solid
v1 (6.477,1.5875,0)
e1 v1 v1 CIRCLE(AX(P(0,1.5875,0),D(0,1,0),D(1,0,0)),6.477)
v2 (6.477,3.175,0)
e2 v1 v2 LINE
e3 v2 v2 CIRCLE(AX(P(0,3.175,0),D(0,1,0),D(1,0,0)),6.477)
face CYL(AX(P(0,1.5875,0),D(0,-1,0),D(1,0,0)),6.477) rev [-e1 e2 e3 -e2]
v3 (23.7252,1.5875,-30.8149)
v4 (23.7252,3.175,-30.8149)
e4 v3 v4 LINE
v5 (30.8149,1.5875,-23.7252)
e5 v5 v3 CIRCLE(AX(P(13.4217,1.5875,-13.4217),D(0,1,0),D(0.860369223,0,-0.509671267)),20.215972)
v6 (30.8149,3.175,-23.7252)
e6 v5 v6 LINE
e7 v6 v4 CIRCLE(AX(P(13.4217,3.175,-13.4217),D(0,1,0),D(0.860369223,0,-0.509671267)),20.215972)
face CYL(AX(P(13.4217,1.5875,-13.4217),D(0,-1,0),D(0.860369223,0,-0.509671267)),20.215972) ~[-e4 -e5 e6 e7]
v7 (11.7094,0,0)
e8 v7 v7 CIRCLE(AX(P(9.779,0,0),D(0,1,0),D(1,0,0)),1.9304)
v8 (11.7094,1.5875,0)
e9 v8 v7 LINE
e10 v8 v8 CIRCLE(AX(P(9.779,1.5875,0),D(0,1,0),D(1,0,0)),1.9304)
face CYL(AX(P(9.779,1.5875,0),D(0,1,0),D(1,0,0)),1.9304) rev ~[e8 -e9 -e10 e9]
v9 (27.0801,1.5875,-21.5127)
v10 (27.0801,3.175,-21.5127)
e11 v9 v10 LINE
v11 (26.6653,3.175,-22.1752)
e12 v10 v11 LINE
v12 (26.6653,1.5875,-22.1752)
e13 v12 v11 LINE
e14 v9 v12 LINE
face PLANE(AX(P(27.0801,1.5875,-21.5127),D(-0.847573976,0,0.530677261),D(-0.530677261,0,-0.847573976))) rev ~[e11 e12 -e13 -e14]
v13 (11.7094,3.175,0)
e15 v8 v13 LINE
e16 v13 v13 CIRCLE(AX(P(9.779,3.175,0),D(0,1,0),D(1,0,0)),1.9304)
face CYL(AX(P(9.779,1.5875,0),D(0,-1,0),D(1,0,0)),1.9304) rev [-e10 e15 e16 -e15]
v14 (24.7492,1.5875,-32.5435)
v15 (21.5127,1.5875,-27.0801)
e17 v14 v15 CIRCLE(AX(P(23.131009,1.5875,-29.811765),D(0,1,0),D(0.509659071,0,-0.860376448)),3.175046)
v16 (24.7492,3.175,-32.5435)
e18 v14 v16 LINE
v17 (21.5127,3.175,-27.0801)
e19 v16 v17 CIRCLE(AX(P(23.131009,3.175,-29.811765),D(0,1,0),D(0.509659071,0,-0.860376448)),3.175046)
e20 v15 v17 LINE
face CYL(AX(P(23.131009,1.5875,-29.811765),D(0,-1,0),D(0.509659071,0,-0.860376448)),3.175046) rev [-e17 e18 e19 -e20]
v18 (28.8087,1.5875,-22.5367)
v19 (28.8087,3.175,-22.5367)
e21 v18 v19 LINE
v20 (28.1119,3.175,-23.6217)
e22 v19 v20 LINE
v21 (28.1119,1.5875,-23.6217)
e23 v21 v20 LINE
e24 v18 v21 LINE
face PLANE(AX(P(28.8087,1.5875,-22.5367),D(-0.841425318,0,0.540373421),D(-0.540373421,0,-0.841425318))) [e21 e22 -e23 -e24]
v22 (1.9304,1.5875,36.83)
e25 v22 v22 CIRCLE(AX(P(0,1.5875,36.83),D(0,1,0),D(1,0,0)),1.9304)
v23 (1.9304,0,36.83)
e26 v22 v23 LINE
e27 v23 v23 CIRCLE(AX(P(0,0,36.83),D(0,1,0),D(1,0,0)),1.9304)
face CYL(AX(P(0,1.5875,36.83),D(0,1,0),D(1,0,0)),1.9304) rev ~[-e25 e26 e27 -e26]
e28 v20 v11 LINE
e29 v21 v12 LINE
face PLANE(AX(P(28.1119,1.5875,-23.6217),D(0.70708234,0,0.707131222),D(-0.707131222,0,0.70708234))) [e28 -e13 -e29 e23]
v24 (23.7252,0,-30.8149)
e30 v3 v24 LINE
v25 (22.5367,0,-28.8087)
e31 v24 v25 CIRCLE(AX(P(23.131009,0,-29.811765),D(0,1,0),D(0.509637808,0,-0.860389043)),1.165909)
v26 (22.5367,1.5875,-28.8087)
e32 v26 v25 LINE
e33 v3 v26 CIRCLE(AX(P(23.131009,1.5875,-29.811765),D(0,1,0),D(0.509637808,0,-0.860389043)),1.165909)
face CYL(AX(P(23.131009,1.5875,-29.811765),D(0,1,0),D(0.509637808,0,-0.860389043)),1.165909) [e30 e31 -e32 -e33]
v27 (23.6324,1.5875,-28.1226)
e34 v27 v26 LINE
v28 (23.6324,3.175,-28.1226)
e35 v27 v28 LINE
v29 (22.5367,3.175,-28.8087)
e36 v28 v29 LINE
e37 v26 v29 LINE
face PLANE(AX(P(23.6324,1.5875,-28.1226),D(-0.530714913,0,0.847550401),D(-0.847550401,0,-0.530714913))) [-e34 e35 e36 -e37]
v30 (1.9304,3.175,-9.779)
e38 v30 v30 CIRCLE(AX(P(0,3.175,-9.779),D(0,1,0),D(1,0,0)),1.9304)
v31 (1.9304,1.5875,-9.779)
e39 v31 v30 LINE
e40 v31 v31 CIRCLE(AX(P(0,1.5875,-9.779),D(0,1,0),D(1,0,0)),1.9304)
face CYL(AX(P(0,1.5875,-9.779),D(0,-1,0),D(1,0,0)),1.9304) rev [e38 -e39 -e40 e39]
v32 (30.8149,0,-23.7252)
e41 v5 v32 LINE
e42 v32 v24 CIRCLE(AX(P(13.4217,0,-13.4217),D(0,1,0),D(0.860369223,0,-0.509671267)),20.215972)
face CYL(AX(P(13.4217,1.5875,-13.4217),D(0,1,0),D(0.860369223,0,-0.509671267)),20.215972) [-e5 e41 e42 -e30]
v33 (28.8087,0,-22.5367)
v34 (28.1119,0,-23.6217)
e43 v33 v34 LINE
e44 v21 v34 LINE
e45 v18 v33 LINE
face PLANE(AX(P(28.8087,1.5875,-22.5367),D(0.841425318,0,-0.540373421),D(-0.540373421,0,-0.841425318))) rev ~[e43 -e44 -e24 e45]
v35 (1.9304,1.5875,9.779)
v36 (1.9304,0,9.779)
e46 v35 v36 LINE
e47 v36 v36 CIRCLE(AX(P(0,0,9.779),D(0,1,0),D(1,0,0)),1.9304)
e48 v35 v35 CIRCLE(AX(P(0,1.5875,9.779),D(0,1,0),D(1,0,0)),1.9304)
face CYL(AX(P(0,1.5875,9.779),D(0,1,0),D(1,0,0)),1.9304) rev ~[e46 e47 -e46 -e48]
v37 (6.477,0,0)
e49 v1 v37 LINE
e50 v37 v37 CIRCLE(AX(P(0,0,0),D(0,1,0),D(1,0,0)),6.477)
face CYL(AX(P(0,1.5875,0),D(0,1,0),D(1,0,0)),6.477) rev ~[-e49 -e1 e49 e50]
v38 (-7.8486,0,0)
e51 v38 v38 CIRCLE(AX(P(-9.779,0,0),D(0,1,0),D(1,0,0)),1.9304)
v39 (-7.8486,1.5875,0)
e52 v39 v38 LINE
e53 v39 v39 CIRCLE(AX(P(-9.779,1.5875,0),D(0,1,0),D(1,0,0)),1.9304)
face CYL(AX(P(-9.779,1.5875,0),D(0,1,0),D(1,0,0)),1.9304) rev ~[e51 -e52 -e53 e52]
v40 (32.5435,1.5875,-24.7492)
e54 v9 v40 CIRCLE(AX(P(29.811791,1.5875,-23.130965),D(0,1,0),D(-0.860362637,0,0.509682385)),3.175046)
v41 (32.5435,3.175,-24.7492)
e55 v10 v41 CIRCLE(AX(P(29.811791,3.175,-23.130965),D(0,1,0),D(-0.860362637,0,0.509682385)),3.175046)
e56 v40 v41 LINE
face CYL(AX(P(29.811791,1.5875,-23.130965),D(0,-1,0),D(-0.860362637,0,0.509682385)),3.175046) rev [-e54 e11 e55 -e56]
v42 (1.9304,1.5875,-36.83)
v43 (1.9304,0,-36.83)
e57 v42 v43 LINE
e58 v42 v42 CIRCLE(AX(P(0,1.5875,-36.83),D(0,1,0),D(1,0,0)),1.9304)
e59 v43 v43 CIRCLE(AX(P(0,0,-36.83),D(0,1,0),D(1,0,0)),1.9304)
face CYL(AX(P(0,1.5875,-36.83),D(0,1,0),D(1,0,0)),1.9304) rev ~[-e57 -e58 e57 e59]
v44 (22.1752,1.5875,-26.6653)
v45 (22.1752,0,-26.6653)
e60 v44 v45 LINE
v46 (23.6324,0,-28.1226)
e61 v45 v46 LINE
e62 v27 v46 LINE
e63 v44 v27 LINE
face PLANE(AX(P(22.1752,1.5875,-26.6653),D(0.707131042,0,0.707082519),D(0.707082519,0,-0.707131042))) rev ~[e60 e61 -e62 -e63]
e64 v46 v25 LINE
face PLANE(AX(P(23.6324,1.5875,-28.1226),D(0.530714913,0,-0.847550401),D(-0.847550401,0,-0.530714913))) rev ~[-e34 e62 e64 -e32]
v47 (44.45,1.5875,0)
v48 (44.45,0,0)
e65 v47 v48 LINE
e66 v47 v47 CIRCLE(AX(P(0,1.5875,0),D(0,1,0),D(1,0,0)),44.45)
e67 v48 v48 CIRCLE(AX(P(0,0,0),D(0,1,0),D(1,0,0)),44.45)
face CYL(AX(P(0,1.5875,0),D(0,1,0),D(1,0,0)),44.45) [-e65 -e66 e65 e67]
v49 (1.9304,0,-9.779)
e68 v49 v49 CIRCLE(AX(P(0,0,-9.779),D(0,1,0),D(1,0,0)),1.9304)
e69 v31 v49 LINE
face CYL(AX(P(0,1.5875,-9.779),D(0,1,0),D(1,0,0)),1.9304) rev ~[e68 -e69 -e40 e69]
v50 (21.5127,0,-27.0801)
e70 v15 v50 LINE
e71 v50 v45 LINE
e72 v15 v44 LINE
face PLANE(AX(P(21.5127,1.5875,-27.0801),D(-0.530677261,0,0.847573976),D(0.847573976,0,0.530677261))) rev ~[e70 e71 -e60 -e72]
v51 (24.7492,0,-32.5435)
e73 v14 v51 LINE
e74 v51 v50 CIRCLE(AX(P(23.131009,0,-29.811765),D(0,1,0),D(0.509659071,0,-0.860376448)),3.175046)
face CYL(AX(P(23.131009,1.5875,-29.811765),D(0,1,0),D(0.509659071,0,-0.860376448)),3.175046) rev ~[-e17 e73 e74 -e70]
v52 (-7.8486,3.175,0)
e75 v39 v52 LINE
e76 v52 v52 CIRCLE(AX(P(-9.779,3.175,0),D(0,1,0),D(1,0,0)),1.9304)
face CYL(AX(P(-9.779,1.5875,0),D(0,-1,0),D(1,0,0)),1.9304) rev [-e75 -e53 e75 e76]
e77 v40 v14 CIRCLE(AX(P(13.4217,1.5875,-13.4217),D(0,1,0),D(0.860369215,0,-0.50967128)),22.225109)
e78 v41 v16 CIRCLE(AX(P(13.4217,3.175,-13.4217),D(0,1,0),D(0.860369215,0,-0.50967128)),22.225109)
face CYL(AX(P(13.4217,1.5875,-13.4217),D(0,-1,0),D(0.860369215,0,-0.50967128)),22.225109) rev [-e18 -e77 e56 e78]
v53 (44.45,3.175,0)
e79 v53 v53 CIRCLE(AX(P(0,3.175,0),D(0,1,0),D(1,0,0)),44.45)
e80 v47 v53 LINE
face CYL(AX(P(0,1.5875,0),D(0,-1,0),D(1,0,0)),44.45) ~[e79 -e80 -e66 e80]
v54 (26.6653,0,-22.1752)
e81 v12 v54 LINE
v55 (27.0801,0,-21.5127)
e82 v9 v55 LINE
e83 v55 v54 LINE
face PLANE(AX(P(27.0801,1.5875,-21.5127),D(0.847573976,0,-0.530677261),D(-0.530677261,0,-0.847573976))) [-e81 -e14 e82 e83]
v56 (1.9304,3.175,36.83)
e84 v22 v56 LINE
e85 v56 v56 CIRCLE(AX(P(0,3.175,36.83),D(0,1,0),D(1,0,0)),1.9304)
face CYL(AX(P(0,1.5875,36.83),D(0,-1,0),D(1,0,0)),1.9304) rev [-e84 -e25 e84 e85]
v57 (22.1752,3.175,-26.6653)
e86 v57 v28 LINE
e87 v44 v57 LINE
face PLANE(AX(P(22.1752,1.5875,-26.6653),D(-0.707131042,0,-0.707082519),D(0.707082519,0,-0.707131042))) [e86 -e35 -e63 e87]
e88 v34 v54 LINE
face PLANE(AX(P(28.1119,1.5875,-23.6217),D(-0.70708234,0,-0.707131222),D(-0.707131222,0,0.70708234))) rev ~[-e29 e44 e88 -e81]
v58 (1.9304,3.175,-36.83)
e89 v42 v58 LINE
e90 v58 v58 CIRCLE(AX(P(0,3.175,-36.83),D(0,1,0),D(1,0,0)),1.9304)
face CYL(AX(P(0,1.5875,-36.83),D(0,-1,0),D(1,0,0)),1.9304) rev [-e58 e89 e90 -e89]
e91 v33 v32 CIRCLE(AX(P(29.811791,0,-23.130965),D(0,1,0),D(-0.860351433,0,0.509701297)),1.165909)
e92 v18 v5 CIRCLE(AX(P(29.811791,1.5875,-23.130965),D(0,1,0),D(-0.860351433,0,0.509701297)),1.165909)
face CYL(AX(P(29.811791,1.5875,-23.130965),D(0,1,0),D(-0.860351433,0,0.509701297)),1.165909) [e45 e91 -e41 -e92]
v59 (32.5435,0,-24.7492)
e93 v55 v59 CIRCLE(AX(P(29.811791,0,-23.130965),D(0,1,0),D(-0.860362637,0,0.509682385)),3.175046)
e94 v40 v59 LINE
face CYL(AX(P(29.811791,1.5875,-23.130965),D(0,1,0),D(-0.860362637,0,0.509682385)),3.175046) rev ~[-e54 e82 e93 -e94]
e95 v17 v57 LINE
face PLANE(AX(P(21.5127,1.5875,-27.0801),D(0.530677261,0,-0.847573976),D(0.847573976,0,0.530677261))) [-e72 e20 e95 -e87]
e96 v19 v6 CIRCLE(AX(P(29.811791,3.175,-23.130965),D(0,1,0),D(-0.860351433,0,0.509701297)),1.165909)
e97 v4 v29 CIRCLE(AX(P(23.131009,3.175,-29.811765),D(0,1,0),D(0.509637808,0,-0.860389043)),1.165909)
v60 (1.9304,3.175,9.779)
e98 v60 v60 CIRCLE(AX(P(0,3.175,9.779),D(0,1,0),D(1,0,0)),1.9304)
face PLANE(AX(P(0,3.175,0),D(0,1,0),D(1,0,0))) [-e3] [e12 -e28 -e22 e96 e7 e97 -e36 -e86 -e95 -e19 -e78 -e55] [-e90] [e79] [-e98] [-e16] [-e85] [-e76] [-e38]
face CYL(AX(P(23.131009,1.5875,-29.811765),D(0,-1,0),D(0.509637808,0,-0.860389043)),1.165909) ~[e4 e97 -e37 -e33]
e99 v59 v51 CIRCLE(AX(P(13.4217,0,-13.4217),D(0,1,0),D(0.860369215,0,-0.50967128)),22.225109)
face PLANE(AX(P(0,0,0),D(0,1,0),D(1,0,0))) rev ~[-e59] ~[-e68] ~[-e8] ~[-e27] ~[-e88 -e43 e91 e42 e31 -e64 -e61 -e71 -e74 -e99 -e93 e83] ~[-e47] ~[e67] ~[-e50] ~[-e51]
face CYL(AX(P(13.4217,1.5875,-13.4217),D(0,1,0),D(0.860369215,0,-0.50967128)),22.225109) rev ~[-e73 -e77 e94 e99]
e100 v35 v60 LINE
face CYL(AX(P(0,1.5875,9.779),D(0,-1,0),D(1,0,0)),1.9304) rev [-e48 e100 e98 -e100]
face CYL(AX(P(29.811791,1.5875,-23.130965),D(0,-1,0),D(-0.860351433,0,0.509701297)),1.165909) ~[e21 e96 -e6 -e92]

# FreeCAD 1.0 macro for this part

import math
import FreeCAD as App
import Part
import Sketcher

V = App.Vector
Q = App.Units.Quantity

doc = App.newDocument("Part")
params = doc.addObject("Spreadsheet::Sheet", "Params")
for row, (alias, value) in enumerate([
    ("sketch1_diameter", "3.5 in"),
    ("sketch1_diameter2", "0.51 in"),
    ("sketch1_diameter3", "0.152 in"),
    ("sketch1_diameter4", "0.152 in"),
    ("sketch1_diameter5", "0.152 in"),
    ("pad1_length", "0.125 in"),
], start=1):
    params.set(f"A{row}", alias)
    params.set(f"B{row}", "=" + value)
    params.setAlias(f"B{row}", alias)

body = doc.addObject("PartDesign::Body", "Body")

sketch1 = body.newObject("Sketcher::SketchObject", "Sketch")
sketch1.AttachmentSupport = (doc.getObject("XZ_Plane"), [""])
sketch1.MapMode = "FlatFace"
sketch1.AttachmentOffset = App.Placement(V(0, 0, -0.0625 * 25.4), App.Rotation())
sketch1.addGeometry([
    Part.Circle(V(0, 0, 0), V(0, 0, 1), 44.45),
    Part.Circle(V(0, 36.83, 0), V(0, 0, 1), 1.9304),
    Part.Circle(V(0, 9.779, 0), V(0, 0, 1), 1.9304),
    Part.Circle(V(-9.779, 0, 0), V(0, 0, 1), 1.9304),
    Part.Circle(V(0, 0, 0), V(0, 0, 1), 6.477),
    Part.Circle(V(9.779, 0, 0), V(0, 0, 1), 1.9304),
    Part.Circle(V(0, -9.779, 0), V(0, 0, 1), 1.9304),
    Part.Circle(V(0, -36.83, 0), V(0, 0, 1), 1.9304),
    Part.LineSegment(V(28.1119, -23.6217, 0), V(28.8087, -22.5367, 0)),
    Part.ArcOfCircle(Part.Circle(V(29.8118, -23.131, 0), V(0, 0, 1), 1.165934), math.radians(-30.64096), math.radians(149.354812)),
    Part.ArcOfCircle(Part.Circle(V(13.4217, -13.4217, 0), V(0, 0, 1), 20.215972), math.radians(-59.358064), math.radians(-30.641936)),
    Part.ArcOfCircle(Part.Circle(V(23.131, -29.8118, 0), V(0, 0, 1), 1.165883), math.radians(120.645188), math.radians(300.64096)),
    Part.LineSegment(V(22.5367, -28.8087, 0), V(23.6324, -28.1226, 0)),
    Part.LineSegment(V(23.6324, -28.1226, 0), V(22.1752, -26.6653, 0)),
    Part.LineSegment(V(22.1752, -26.6653, 0), V(21.5127, -27.0801, 0)),
    Part.ArcOfCircle(Part.Circle(V(23.131, -29.8118, 0), V(0, 0, 1), 3.175021), math.radians(120.643136), math.radians(300.641583)),
    Part.ArcOfCircle(Part.Circle(V(13.4217, -13.4217, 0), V(0, 0, 1), 22.225109), math.radians(-59.358064), math.radians(-30.641936)),
    Part.ArcOfCircle(Part.Circle(V(29.8118, -23.131, 0), V(0, 0, 1), 3.175072), math.radians(-30.641583), math.radians(149.356864)),
    Part.LineSegment(V(27.0801, -21.5127, 0), V(26.6653, -22.1752, 0)),
    Part.LineSegment(V(26.6653, -22.1752, 0), V(28.1119, -23.6217, 0)),
], False)
sketch1.addConstraint([
    Sketcher.Constraint("Coincident", 8, 2, 9, 2),
    Sketcher.Constraint("Coincident", 9, 1, 10, 2),
    Sketcher.Constraint("Coincident", 10, 1, 11, 2),
    Sketcher.Constraint("Coincident", 11, 1, 12, 1),
    Sketcher.Constraint("Coincident", 12, 2, 13, 1),
    Sketcher.Constraint("Coincident", 13, 2, 14, 1),
    Sketcher.Constraint("Coincident", 14, 2, 15, 1),
    Sketcher.Constraint("Coincident", 15, 2, 16, 1),
    Sketcher.Constraint("Coincident", 16, 2, 17, 1),
    Sketcher.Constraint("Coincident", 17, 2, 18, 1),
    Sketcher.Constraint("Coincident", 18, 2, 19, 1),
    Sketcher.Constraint("Coincident", 19, 2, 8, 1),
    Sketcher.Constraint("Coincident", 0, 3, -1, 1),
    Sketcher.Constraint("Coincident", 4, 3, -1, 1),
    Sketcher.Constraint("Coincident", 15, 3, 11, 3),
    Sketcher.Constraint("Coincident", 16, 3, 10, 3),
    Sketcher.Constraint("Coincident", 17, 3, 9, 3),
    Sketcher.Constraint("PointOnObject", 1, 3, -2),
    Sketcher.Constraint("PointOnObject", 2, 3, -2),
    Sketcher.Constraint("PointOnObject", 3, 3, -1),
    Sketcher.Constraint("PointOnObject", 5, 3, -1),
    Sketcher.Constraint("PointOnObject", 6, 3, -2),
    Sketcher.Constraint("PointOnObject", 7, 3, -2),
    Sketcher.Constraint("Diameter", 0, Q("3.5 in")),
    Sketcher.Constraint("Diameter", 4, Q("0.51 in")),
    Sketcher.Constraint("Diameter", 1, Q("0.152 in")),
    Sketcher.Constraint("Diameter", 2, Q("0.152 in")),
    Sketcher.Constraint("Diameter", 3, Q("0.152 in")),
    Sketcher.Constraint("Diameter", 5, Q("0.152 in")),
    Sketcher.Constraint("Diameter", 6, Q("0.152 in")),
    Sketcher.Constraint("Diameter", 7, Q("0.152 in")),
    Sketcher.Constraint("DistanceY", -1, 1, 1, 3, Q("1.45 in")),
    Sketcher.Constraint("DistanceY", 7, 3, -1, 1, Q("1.45 in")),
    Sketcher.Constraint("Radius", 15, Q("0.125 in")),
    Sketcher.Constraint("Radius", 16, Q("0.875 in")),
    Sketcher.Constraint("Radius", 17, Q("0.125 in")),
    Sketcher.Constraint("Radius", 9, Q("0.0459 in")),
    Sketcher.Constraint("DistanceY", 19, 2, -1, 1, Q("0.93 in")),
    Sketcher.Constraint("DistanceX", 3, 3, 5, 3, Q("0.77 in")),
    Sketcher.Constraint("DistanceY", 6, 3, 2, 3, Q("0.77 in")),
    Sketcher.Constraint("DistanceY", -1, 1, 2, 3, Q("0.385 in")),
    Sketcher.Constraint("DistanceX", 3, 3, -1, 1, Q("0.385 in")),
    Sketcher.Constraint("DistanceY", 10, 1, 12, 2, Q("0.106 in")),
    Sketcher.Constraint("Distance", 12, Q("0.0509 in")),
    Sketcher.Constraint("DistanceX", -1, 1, 9, 3, Q("1.1737 in")),
    Sketcher.Constraint("DistanceY", 11, 3, -1, 1, Q("1.1737 in")),
    Sketcher.Constraint("DistanceX", -1, 1, 8, 2, Q("1.1342 in")),
    Sketcher.Constraint("DistanceY", 11, 1, -1, 1, Q("1.1342 in")),
    Sketcher.Constraint("DistanceX", -1, 1, 12, 2, Q("0.9304 in")),
    Sketcher.Constraint("DistanceY", 12, 2, -1, 1, Q("1.1072 in")),
    Sketcher.Constraint("DistanceX", 9, 3, 9, 1, Q("0.0395 in")),
    Sketcher.Constraint("DistanceX", 11, 3, 15, 2, Q("0.0637 in")),
    Sketcher.Constraint("DistanceY", 16, 2, 9, 3, Q("0.0637 in")),
    Sketcher.Constraint("DistanceY", 12, 2, 16, 2, Q("0.1328 in")),
    Sketcher.Constraint("DistanceY", 9, 1, 17, 2, Q("0.0871 in")),
    Sketcher.Constraint("Distance", 8, Q("1.2895 mm")),
    Sketcher.Constraint("Distance", 13, Q("2.0609 mm")),
    Sketcher.Constraint("Distance", 14, Q("0.7816 mm")),
    Sketcher.Constraint("Distance", 18, Q("0.7816 mm")),
    Sketcher.Constraint("Distance", 19, Q("2.0457 mm")),
    Sketcher.Constraint("DistanceX", -1, 1, 13, 2, Q("22.1752 mm")),
])
sketch1.setExpression("Constraints[23]", "Params.sketch1_diameter")
sketch1.setExpression("Constraints[24]", "Params.sketch1_diameter2")
sketch1.setExpression("Constraints[25]", "Params.sketch1_diameter3")
sketch1.setExpression("Constraints[26]", "Params.sketch1_diameter4")
sketch1.setExpression("Constraints[27]", "Params.sketch1_diameter5")
pad1 = body.newObject("PartDesign::Pad", "Pad")
pad1.Profile = sketch1
pad1.setExpression("Length", "Params.pad1_length")
pad1.Midplane = True

doc.recompute()
